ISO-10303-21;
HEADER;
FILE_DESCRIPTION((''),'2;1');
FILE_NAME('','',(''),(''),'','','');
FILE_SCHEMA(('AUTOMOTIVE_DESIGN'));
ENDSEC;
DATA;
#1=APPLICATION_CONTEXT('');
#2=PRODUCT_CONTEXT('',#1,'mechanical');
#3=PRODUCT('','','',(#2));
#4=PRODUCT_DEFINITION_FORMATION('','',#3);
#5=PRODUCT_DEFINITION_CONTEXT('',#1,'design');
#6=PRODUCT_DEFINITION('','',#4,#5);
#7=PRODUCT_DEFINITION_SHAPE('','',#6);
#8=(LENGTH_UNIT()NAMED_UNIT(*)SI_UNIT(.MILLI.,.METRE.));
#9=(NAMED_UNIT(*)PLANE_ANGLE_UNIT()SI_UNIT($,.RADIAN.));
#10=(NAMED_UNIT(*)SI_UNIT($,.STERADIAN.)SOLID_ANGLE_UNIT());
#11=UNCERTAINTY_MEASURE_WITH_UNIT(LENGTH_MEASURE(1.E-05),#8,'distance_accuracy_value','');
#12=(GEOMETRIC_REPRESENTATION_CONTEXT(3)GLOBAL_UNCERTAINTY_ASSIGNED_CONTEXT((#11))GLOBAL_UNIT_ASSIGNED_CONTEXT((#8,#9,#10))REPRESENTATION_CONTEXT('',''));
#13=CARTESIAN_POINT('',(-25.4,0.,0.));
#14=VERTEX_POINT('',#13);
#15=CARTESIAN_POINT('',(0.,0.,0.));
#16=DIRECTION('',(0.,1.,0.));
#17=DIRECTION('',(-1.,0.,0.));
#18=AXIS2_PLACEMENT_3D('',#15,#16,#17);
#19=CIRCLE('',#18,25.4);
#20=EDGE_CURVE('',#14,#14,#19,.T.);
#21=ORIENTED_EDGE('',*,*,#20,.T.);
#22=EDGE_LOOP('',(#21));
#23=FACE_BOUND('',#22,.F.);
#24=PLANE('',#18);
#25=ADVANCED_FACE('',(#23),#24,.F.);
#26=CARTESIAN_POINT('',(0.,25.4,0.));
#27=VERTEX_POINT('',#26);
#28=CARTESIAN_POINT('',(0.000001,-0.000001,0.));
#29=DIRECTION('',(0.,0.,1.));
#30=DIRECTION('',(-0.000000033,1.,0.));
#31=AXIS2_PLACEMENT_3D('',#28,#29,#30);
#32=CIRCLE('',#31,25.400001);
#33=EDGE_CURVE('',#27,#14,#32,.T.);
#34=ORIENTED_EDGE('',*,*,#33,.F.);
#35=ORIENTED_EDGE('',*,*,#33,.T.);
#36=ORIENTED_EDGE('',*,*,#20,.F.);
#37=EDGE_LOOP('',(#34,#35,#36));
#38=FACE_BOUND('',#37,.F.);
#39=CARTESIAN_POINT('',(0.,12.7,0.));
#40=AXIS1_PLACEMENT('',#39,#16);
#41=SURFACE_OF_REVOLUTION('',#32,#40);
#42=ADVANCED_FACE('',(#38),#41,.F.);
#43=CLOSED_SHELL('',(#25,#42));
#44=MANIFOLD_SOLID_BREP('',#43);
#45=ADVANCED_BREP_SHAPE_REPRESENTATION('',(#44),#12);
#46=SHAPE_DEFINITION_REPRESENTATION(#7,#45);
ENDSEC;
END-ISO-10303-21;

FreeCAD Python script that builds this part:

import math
import FreeCAD as App
import Part
import Sketcher

V = App.Vector
Q = App.Units.Quantity

doc = App.newDocument("Part")
body = doc.addObject("PartDesign::Body", "Body")

sketch1 = body.newObject("Sketcher::SketchObject", "Sketch")
sketch1.AttachmentSupport = (doc.getObject("XY_Plane"), [""])
sketch1.MapMode = "FlatFace"
sketch1.addGeometry(Part.LineSegment(V(-25, 0, 0), V(0, 0, 0)), False)
sketch1.addGeometry(Part.LineSegment(V(0, 0, 0), V(0, 25, 0)), False)
sketch1.addGeometry(Part.ArcOfCircle(Part.Circle(V(0, 0, 0), V(0, 0, 1), 25), math.radians(90), math.radians(180)), False)
sketch1.addConstraint(Sketcher.Constraint("Coincident", 0, 2, 1, 1))
sketch1.addConstraint(Sketcher.Constraint("Coincident", 1, 2, 2, 1))
sketch1.addConstraint(Sketcher.Constraint("Coincident", 2, 2, 0, 1))
sketch1.addConstraint(Sketcher.Constraint("Horizontal", 0))
sketch1.addConstraint(Sketcher.Constraint("Vertical", 1))
sketch1.addConstraint(Sketcher.Constraint("Coincident", 2, 3, -1, 1))
sketch1.addConstraint(Sketcher.Constraint("Coincident", 0, 2, -1, 1))
sketch1.addConstraint(Sketcher.Constraint("Radius", 2, Q("1 in")))
revolution = body.newObject("PartDesign::Revolution", "Revolution")
revolution.Profile = sketch1
revolution.ReferenceAxis = (sketch1, ["V_Axis"])
revolution.Angle = 360

doc.recompute()
